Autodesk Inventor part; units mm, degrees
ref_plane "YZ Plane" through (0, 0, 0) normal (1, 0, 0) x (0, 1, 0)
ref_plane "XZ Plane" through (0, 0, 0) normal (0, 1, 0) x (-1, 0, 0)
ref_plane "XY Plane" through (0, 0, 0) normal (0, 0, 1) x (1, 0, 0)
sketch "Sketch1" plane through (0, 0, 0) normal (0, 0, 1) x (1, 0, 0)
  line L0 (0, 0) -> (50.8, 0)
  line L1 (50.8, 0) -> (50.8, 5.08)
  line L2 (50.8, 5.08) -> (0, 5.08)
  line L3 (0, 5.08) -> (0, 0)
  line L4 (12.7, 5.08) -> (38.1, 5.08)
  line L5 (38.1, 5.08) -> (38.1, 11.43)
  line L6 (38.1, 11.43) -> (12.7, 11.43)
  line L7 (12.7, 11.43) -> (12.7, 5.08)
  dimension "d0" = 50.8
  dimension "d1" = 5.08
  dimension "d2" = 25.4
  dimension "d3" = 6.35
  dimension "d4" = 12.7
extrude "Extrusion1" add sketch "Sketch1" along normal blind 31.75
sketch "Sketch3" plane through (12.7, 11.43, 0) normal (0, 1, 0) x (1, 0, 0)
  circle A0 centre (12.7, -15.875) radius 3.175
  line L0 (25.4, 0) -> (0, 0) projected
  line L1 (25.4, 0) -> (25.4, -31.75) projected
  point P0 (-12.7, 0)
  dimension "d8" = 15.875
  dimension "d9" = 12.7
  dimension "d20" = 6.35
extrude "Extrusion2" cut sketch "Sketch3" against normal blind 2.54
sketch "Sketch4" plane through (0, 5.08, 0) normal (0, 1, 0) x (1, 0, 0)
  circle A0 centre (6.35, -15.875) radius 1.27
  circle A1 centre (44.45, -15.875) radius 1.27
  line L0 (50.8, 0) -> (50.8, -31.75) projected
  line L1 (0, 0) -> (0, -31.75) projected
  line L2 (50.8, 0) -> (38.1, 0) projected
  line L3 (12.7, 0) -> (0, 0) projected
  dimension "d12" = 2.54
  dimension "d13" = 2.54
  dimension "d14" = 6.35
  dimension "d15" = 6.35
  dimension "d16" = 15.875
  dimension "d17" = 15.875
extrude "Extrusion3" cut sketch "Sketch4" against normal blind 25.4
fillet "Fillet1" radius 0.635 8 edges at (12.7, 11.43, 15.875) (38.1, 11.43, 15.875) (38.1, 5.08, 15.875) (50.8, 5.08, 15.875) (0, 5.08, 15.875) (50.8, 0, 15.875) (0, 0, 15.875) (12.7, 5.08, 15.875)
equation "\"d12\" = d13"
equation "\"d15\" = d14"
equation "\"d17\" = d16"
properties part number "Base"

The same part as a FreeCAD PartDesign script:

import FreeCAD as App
import Part
import Sketcher
Q = App.Units.Quantity


def edges_at(feature, points):
    """Names of the edges that pass closest to the given points."""
    edges = feature.Shape.Edges
    near = lambda p: min(range(len(edges)), key=lambda i: edges[i].distToShape(Part.Vertex(*p))[0])
    return sorted({f"Edge{near(p) + 1}" for p in points})

doc = App.newDocument("Part")
body = doc.addObject("PartDesign::Body", "Body")

# Sketch on XY plane
sketch1 = body.newObject("Sketcher::SketchObject", "Sketch")
sketch1.AttachmentSupport = (doc.getObject("XY_Plane"), [""])
sketch1.MapMode = "FlatFace"
sketch1.addGeometry([
    Part.LineSegment(App.Vector(0, 5, 0), App.Vector(0, 0, 0)),  # 0
    Part.LineSegment(App.Vector(0, 0, 0), App.Vector(51, 0, 0)),  # 1
    Part.LineSegment(App.Vector(51, 0, 0), App.Vector(51, 5, 0)),  # 2
    Part.LineSegment(App.Vector(51, 5, 0), App.Vector(38, 5, 0)),  # 3
    Part.LineSegment(App.Vector(38, 5, 0), App.Vector(38, 11, 0)),  # 4
    Part.LineSegment(App.Vector(38, 11, 0), App.Vector(13, 11, 0)),  # 5
    Part.LineSegment(App.Vector(13, 11, 0), App.Vector(13, 5, 0)),  # 6
    Part.LineSegment(App.Vector(13, 5, 0), App.Vector(0, 5, 0)),  # 7
], False)
sketch1.addConstraint([
    Sketcher.Constraint("Coincident", 0, 2, 1, 1),
    Sketcher.Constraint("Coincident", 1, 2, 2, 1),
    Sketcher.Constraint("Coincident", 2, 2, 3, 1),
    Sketcher.Constraint("Coincident", 3, 2, 4, 1),
    Sketcher.Constraint("Coincident", 4, 2, 5, 1),
    Sketcher.Constraint("Coincident", 5, 2, 6, 1),
    Sketcher.Constraint("Coincident", 6, 2, 7, 1),
    Sketcher.Constraint("Coincident", 7, 2, 0, 1),
    Sketcher.Constraint("Vertical", 0),
    Sketcher.Constraint("Horizontal", 1),
    Sketcher.Constraint("Vertical", 2),
    Sketcher.Constraint("Horizontal", 3),
    Sketcher.Constraint("Vertical", 4),
    Sketcher.Constraint("Horizontal", 5),
    Sketcher.Constraint("Vertical", 6),
    Sketcher.Constraint("Horizontal", 7),
    Sketcher.Constraint("Coincident", 0, 2, -1, 1),
    Sketcher.Constraint("Horizontal", 3, 2, 6, 2),
    Sketcher.Constraint("Equal", 3, 7),
    Sketcher.Constraint("DistanceX", 1, 1, 1, 2, Q("2 in")),
    Sketcher.Constraint("DistanceX", 5, 2, 5, 1, Q("1 in")),
    Sketcher.Constraint("DistanceY", 0, 2, 0, 1, Q("0.2 in")),
    Sketcher.Constraint("DistanceY", 4, 1, 4, 2, Q("0.25 in")),
])
pad1 = body.newObject("PartDesign::Pad", "Pad")
pad1.Profile = sketch1
pad1.Length = Q("1.25 in")

# Sketch on XZ plane
sketch2 = body.newObject("Sketcher::SketchObject", "Sketch001")
sketch2.AttachmentSupport = (doc.getObject("XZ_Plane"), [""])
sketch2.MapMode = "FlatFace"
sketch2.AttachmentOffset = App.Placement(App.Vector(0, 0, -0.45 * 25.4), App.Rotation())
sketch2.addGeometry(Part.Circle(App.Vector(25.4, 15.9, 0), App.Vector(0, 0, 1), 3.2), False)
sketch2.addConstraint([
    Sketcher.Constraint("Diameter", 0, Q("0.25 in")),
    Sketcher.Constraint("DistanceX", -1, 1, 0, 3, Q("1 in")),
    Sketcher.Constraint("DistanceY", -1, 1, 0, 3, Q("0.625 in")),
])
pocket1 = body.newObject("PartDesign::Pocket", "Pocket")
pocket1.Profile = sketch2
pocket1.Length = Q("0.1 in")
pocket1.Reversed = True

# Sketch on XZ plane
sketch3 = body.newObject("Sketcher::SketchObject", "Sketch002")
sketch3.AttachmentSupport = (doc.getObject("XZ_Plane"), [""])
sketch3.MapMode = "FlatFace"
sketch3.AttachmentOffset = App.Placement(App.Vector(0, 0, -0.2 * 25.4), App.Rotation())
sketch3.addGeometry([
    Part.Circle(App.Vector(6.3, 15.9, 0), App.Vector(0, 0, 1), 1.3),
    Part.Circle(App.Vector(44.5, 15.9, 0), App.Vector(0, 0, 1), 1.3),
], False)
sketch3.addConstraint([
    Sketcher.Constraint("Equal", 0, 1),
    Sketcher.Constraint("Horizontal", 0, 3, 1, 3),
    Sketcher.Constraint("Diameter", 0, Q("0.1 in")),
    Sketcher.Constraint("DistanceX", -1, 1, 0, 3, Q("0.25 in")),
    Sketcher.Constraint("DistanceY", -1, 1, 0, 3, Q("0.625 in")),
    Sketcher.Constraint("DistanceX", 0, 3, 1, 3, Q("1.5 in")),
])
pocket2 = body.newObject("PartDesign::Pocket", "Pocket001")
pocket2.Profile = sketch3
pocket2.Length = Q("1 in")
pocket2.Reversed = True
doc.recompute()

fillet = body.newObject("PartDesign::Fillet", "Fillet")
fillet.Base = (pocket2, edges_at(pocket2, [
    (12.7, 11.43, 15.875),
    (38.1, 11.43, 15.875),
    (38.1, 5.08, 15.875),
    (50.8, 5.08, 15.875),
    (0, 5.08, 15.875),
    (50.8, 0, 15.875),
    (0, 0, 15.875),
    (12.7, 5.08, 15.875),
]))
fillet.Radius = Q("0.025 in")

doc.recompute()
